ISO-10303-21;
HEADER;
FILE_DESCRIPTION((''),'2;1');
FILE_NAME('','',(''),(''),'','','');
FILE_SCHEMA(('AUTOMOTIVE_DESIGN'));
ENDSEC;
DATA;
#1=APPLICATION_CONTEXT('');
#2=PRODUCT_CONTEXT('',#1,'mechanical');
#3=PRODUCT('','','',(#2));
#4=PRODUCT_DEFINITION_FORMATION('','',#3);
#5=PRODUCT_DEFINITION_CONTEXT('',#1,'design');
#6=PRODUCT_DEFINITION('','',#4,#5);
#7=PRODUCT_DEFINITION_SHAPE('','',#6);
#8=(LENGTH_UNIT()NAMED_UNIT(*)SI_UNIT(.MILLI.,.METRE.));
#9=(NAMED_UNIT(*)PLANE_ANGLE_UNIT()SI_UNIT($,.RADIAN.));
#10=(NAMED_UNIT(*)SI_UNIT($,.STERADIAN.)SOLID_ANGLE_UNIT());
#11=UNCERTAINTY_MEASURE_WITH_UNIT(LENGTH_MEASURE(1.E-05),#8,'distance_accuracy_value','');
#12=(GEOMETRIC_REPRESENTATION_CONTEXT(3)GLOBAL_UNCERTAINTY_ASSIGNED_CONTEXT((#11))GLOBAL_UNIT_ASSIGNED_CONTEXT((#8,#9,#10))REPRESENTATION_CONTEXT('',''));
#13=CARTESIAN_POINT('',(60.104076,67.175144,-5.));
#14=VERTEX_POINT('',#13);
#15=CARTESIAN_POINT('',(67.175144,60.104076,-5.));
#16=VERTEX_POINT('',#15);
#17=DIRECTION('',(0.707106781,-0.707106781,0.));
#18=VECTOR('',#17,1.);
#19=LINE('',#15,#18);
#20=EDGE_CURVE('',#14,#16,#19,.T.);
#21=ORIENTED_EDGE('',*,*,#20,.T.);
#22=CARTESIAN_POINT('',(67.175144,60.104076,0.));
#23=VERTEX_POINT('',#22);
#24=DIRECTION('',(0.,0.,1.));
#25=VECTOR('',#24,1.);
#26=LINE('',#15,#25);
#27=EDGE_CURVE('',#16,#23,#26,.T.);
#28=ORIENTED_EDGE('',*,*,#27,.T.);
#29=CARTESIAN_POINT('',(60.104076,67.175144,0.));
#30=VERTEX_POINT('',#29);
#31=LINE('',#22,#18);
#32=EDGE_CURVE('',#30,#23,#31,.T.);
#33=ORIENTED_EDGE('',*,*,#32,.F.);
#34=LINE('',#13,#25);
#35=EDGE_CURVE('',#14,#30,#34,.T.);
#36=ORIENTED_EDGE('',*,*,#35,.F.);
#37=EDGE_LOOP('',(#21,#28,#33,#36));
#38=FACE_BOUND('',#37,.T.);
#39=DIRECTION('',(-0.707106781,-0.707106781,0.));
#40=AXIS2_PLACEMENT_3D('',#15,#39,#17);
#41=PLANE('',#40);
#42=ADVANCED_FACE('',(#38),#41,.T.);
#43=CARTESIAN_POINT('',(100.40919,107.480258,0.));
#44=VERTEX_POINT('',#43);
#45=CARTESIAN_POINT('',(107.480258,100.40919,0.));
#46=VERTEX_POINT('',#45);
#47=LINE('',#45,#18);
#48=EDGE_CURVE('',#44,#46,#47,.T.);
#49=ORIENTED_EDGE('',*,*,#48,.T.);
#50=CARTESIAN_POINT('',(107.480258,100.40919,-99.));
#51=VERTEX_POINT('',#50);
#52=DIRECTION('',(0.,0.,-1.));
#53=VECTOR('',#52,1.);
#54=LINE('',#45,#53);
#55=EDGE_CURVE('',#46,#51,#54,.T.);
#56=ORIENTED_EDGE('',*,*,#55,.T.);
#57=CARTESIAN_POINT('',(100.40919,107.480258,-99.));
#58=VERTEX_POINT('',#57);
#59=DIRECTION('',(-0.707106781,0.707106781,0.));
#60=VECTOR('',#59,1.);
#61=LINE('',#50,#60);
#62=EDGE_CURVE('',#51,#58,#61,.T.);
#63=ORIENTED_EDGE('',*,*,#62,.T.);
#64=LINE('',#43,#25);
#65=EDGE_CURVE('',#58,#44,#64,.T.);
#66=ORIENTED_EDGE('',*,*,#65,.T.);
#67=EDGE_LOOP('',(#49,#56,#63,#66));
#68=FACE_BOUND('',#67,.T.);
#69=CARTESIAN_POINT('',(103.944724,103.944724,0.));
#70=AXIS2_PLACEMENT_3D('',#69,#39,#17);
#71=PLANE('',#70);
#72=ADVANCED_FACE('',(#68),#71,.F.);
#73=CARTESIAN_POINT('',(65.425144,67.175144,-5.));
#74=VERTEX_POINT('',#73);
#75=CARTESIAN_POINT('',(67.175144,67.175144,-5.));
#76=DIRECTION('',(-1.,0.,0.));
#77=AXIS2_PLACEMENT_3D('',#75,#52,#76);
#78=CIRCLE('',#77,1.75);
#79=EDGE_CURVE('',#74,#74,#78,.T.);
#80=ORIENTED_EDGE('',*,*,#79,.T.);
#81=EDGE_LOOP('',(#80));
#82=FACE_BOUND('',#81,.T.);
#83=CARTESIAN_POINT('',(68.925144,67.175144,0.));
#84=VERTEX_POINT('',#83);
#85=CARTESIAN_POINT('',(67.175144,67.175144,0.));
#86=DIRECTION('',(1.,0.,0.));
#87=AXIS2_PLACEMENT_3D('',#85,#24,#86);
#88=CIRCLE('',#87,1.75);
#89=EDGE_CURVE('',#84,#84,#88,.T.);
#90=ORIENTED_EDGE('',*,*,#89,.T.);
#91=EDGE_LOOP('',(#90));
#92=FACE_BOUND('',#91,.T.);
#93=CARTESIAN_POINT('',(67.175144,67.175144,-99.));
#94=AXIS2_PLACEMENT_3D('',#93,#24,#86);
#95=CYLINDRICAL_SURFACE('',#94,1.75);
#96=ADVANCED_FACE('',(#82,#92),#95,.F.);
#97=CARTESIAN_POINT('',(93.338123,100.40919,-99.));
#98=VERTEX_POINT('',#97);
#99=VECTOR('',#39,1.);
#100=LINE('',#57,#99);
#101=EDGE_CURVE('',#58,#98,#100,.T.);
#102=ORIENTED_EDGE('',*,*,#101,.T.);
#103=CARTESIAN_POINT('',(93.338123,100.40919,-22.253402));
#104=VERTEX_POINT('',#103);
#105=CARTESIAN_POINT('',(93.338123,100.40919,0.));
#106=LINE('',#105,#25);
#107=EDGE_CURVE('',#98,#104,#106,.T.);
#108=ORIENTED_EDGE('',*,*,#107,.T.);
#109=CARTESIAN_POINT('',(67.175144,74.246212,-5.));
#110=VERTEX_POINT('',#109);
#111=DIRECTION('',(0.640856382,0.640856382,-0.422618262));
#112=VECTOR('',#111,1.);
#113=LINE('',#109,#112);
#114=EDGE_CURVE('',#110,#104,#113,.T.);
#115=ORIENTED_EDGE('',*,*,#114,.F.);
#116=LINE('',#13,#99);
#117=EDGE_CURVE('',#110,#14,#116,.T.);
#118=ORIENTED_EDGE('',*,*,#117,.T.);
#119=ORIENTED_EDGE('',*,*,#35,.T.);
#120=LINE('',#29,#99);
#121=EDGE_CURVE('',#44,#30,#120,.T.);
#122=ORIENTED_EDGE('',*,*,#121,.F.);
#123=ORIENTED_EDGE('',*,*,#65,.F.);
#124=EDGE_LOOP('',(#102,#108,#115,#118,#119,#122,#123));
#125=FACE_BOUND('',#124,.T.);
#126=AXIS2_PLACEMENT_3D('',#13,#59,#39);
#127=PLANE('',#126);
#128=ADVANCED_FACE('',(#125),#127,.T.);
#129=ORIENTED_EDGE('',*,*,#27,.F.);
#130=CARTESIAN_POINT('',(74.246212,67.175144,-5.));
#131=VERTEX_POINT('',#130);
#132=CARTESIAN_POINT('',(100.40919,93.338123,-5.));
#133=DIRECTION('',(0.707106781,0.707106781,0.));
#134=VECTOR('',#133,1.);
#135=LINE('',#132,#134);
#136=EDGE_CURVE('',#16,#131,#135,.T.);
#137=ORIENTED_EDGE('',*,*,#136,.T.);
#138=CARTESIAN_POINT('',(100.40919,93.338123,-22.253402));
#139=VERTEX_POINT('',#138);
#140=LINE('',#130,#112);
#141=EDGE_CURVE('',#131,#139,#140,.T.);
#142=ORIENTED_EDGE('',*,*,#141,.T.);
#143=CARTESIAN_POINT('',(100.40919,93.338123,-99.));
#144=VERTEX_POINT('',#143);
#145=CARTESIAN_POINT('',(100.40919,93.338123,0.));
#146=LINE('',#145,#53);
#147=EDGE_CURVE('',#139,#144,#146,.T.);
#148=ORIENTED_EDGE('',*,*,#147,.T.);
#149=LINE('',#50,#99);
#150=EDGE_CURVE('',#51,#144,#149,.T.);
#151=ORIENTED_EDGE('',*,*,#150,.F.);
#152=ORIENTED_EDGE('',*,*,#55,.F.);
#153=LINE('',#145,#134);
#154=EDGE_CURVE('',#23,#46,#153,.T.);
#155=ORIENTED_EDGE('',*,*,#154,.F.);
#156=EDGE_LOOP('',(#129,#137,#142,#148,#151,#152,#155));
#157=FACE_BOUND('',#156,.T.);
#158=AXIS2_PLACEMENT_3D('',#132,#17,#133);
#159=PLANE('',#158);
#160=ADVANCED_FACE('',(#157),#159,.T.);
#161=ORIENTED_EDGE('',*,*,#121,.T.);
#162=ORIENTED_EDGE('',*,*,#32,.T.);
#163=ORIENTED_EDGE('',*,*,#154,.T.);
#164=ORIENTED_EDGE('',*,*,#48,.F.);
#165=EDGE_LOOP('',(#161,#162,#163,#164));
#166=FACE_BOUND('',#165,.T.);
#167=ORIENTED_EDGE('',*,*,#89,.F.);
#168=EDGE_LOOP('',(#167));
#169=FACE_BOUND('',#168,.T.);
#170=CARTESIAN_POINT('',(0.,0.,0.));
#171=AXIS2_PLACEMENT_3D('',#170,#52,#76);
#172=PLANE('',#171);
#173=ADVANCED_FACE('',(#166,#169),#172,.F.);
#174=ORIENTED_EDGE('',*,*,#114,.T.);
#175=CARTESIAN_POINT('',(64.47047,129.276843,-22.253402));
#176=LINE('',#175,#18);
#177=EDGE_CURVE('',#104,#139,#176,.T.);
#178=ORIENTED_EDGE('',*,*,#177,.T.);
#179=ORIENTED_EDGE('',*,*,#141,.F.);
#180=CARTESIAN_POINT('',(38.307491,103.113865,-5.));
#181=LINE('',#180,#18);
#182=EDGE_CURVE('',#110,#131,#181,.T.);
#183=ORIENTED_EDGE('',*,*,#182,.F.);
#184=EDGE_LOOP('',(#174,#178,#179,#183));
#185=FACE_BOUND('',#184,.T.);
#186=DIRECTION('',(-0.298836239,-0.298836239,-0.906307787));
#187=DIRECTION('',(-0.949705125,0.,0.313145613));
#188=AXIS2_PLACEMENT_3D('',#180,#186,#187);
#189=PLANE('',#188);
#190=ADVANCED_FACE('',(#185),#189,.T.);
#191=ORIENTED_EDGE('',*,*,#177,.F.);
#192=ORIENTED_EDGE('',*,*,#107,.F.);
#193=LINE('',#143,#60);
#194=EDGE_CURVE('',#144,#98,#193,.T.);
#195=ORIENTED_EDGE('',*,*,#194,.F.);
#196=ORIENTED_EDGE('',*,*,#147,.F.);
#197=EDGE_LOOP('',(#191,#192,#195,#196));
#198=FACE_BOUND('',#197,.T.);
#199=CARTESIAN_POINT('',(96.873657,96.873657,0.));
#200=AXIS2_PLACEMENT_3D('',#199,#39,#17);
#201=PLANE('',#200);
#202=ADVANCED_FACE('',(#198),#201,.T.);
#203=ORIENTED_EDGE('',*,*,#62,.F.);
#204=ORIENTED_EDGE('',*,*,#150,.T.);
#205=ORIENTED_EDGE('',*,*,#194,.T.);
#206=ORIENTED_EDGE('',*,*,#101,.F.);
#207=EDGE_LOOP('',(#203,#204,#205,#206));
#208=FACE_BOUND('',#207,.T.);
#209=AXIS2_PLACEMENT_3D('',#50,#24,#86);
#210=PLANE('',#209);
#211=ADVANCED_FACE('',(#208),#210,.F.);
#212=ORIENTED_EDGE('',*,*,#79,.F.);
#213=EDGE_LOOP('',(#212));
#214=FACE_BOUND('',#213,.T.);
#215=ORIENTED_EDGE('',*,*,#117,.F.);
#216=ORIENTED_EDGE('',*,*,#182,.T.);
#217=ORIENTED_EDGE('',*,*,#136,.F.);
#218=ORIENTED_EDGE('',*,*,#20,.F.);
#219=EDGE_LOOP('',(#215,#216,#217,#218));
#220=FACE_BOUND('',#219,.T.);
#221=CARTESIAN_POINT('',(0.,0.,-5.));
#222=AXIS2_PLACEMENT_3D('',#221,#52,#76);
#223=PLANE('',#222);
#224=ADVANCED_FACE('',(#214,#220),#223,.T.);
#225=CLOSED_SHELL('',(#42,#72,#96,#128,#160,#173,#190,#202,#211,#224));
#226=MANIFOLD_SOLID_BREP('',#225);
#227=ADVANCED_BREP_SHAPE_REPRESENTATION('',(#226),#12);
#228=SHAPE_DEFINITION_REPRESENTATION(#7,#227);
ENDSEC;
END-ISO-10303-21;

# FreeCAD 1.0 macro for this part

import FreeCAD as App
import Part
import Sketcher
Q = App.Units.Quantity

doc = App.newDocument("Part")
params = doc.addObject("Spreadsheet::Sheet", "Params")
for row, (alias, value) in enumerate([
    ("sketch1_length", "10 mm"),
    ("pad1_length", "5 mm"),
    ("sketch2_width", "99 mm"),
    ("sketch2_height", "10 mm"),
    ("pad2_length", "10 mm"),
    ("pad3_length", "10 mm"),
    ("sketch4_diameter", "3.5 mm"),
], start=1):
    params.set(f"A{row}", alias)
    params.set(f"B{row}", "=" + value)
    params.setAlias(f"B{row}", alias)

body = doc.addObject("PartDesign::Body", "Body")

sketch1 = body.newObject("Sketcher::SketchObject", "Sketch")
sketch1.AttachmentSupport = (doc.getObject("XY_Plane"), [""])
sketch1.MapMode = "FlatFace"
sketch1.addGeometry([
    Part.LineSegment(App.Vector(60, 67, 0), App.Vector(67, 60, 0)),
    Part.LineSegment(App.Vector(67, 60, 0), App.Vector(100, 93, 0)),
    Part.LineSegment(App.Vector(100, 93, 0), App.Vector(93, 100, 0)),
    Part.LineSegment(App.Vector(93, 100, 0), App.Vector(60, 67, 0)),
], False)
sketch1.addConstraint([
    Sketcher.Constraint("Coincident", 0, 2, 1, 1),
    Sketcher.Constraint("Coincident", 1, 2, 2, 1),
    Sketcher.Constraint("Coincident", 2, 2, 3, 1),
    Sketcher.Constraint("Coincident", 3, 2, 0, 1),
    Sketcher.Constraint("Perpendicular", 0, 1),
    Sketcher.Constraint("Perpendicular", 1, 2),
    Sketcher.Constraint("Perpendicular", 2, 3),
    Sketcher.Constraint("Angle", 0, Q("-45 deg")),
    Sketcher.Constraint("Distance", 0, 10.0),
    Sketcher.Constraint("Distance", 1, 47.000039),
    Sketcher.Constraint("DistanceX", -1, 1, 1, 2, 100.40919),
    Sketcher.Constraint("DistanceY", -1, 1, 2, 2, 100.40919),
])
sketch1.setExpression("Constraints[8]", "Params.sketch1_length")
pad1 = body.newObject("PartDesign::Pad", "Pad")
pad1.Profile = sketch1
pad1.setExpression("Length", "Params.pad1_length")
pad1.Reversed = True

sketch2 = body.newObject("Sketcher::SketchObject", "Sketch001")
sketch2.Placement = App.Placement(App.Vector(96.873657, 96.873657, 0), App.Rotation(App.Vector(0, 0, -1), App.Vector(-0.707106781, 0.707106781, 0), App.Vector(0.707106781, 0.707106781, 0), "ZXY"))
sketch2.addGeometry([
    Part.LineSegment(App.Vector(0, 5, 0), App.Vector(0, -5, 0)),
    Part.LineSegment(App.Vector(0, -5, 0), App.Vector(99, -5, 0)),
    Part.LineSegment(App.Vector(99, -5, 0), App.Vector(99, 5, 0)),
    Part.LineSegment(App.Vector(99, 5, 0), App.Vector(0, 5, 0)),
], False)
sketch2.addConstraint([
    Sketcher.Constraint("Coincident", 0, 2, 1, 1),
    Sketcher.Constraint("Coincident", 1, 2, 2, 1),
    Sketcher.Constraint("Coincident", 2, 2, 3, 1),
    Sketcher.Constraint("Coincident", 3, 2, 0, 1),
    Sketcher.Constraint("Vertical", 0),
    Sketcher.Constraint("Horizontal", 1),
    Sketcher.Constraint("Vertical", 2),
    Sketcher.Constraint("Horizontal", 3),
    Sketcher.Constraint("Symmetric", 0, 2, 3, 2, -1, 1),
    Sketcher.Constraint("DistanceX", 1, 1, 1, 2, 99.0),
    Sketcher.Constraint("DistanceY", 0, 2, 0, 1, 10.0),
])
sketch2.setExpression("Constraints[9]", "Params.sketch2_width")
sketch2.setExpression("Constraints[10]", "Params.sketch2_height")
pad2 = body.newObject("PartDesign::Pad", "Pad001")
pad2.Profile = sketch2
pad2.setExpression("Length", "Params.pad2_length")

sketch3 = body.newObject("Sketcher::SketchObject", "Sketch002")
sketch3.Placement = App.Placement(App.Vector(3.535534, -3.535534, 0), App.Rotation(App.Vector(0, 0, -1), App.Vector(0.707106781, 0.707106781, 0), App.Vector(0.707106781, -0.707106781, 0), "ZXY"))
sketch3.addGeometry([
    Part.LineSegment(App.Vector(5, 100, 0), App.Vector(22, 137, 0)),
    Part.LineSegment(App.Vector(22, 137, 0), App.Vector(5, 137, 0)),
    Part.LineSegment(App.Vector(5, 137, 0), App.Vector(5, 100, 0)),
], False)
sketch3.addConstraint([
    Sketcher.Constraint("Coincident", 0, 2, 1, 1),
    Sketcher.Constraint("Coincident", 1, 2, 2, 1),
    Sketcher.Constraint("Coincident", 2, 2, 0, 1),
    Sketcher.Constraint("Horizontal", 1),
    Sketcher.Constraint("Vertical", 2),
    Sketcher.Constraint("Angle", 0, Q("65 deg")),
    Sketcher.Constraint("DistanceX", -1, 1, 1, 2, 5.0),
    Sketcher.Constraint("DistanceY", -1, 1, 2, 2, 100.0),
    Sketcher.Constraint("DistanceX", 1, 2, 1, 1, 17.253402),
])
pad3 = body.newObject("PartDesign::Pad", "Pad002")
pad3.Profile = sketch3
pad3.setExpression("Length", "Params.pad3_length")
pad3.Reversed = True

sketch4 = body.newObject("Sketcher::SketchObject", "Sketch003")
sketch4.AttachmentSupport = (doc.getObject("XY_Plane"), [""])
sketch4.MapMode = "FlatFace"
sketch4.addGeometry(Part.Circle(App.Vector(67.2, 67.2, 0), App.Vector(0, 0, 1), 1.8), False)
sketch4.addConstraint([
    Sketcher.Constraint("Diameter", 0, 3.5),
    Sketcher.Constraint("DistanceX", -1, 1, 0, 3, 67.175144),
    Sketcher.Constraint("DistanceY", -1, 1, 0, 3, 67.175144),
])
sketch4.setExpression("Constraints[0]", "Params.sketch4_diameter")
pocket1 = body.newObject("PartDesign::Pocket", "Pocket")
pocket1.Profile = sketch4
pocket1.Type = "ThroughAll"

doc.recompute()
